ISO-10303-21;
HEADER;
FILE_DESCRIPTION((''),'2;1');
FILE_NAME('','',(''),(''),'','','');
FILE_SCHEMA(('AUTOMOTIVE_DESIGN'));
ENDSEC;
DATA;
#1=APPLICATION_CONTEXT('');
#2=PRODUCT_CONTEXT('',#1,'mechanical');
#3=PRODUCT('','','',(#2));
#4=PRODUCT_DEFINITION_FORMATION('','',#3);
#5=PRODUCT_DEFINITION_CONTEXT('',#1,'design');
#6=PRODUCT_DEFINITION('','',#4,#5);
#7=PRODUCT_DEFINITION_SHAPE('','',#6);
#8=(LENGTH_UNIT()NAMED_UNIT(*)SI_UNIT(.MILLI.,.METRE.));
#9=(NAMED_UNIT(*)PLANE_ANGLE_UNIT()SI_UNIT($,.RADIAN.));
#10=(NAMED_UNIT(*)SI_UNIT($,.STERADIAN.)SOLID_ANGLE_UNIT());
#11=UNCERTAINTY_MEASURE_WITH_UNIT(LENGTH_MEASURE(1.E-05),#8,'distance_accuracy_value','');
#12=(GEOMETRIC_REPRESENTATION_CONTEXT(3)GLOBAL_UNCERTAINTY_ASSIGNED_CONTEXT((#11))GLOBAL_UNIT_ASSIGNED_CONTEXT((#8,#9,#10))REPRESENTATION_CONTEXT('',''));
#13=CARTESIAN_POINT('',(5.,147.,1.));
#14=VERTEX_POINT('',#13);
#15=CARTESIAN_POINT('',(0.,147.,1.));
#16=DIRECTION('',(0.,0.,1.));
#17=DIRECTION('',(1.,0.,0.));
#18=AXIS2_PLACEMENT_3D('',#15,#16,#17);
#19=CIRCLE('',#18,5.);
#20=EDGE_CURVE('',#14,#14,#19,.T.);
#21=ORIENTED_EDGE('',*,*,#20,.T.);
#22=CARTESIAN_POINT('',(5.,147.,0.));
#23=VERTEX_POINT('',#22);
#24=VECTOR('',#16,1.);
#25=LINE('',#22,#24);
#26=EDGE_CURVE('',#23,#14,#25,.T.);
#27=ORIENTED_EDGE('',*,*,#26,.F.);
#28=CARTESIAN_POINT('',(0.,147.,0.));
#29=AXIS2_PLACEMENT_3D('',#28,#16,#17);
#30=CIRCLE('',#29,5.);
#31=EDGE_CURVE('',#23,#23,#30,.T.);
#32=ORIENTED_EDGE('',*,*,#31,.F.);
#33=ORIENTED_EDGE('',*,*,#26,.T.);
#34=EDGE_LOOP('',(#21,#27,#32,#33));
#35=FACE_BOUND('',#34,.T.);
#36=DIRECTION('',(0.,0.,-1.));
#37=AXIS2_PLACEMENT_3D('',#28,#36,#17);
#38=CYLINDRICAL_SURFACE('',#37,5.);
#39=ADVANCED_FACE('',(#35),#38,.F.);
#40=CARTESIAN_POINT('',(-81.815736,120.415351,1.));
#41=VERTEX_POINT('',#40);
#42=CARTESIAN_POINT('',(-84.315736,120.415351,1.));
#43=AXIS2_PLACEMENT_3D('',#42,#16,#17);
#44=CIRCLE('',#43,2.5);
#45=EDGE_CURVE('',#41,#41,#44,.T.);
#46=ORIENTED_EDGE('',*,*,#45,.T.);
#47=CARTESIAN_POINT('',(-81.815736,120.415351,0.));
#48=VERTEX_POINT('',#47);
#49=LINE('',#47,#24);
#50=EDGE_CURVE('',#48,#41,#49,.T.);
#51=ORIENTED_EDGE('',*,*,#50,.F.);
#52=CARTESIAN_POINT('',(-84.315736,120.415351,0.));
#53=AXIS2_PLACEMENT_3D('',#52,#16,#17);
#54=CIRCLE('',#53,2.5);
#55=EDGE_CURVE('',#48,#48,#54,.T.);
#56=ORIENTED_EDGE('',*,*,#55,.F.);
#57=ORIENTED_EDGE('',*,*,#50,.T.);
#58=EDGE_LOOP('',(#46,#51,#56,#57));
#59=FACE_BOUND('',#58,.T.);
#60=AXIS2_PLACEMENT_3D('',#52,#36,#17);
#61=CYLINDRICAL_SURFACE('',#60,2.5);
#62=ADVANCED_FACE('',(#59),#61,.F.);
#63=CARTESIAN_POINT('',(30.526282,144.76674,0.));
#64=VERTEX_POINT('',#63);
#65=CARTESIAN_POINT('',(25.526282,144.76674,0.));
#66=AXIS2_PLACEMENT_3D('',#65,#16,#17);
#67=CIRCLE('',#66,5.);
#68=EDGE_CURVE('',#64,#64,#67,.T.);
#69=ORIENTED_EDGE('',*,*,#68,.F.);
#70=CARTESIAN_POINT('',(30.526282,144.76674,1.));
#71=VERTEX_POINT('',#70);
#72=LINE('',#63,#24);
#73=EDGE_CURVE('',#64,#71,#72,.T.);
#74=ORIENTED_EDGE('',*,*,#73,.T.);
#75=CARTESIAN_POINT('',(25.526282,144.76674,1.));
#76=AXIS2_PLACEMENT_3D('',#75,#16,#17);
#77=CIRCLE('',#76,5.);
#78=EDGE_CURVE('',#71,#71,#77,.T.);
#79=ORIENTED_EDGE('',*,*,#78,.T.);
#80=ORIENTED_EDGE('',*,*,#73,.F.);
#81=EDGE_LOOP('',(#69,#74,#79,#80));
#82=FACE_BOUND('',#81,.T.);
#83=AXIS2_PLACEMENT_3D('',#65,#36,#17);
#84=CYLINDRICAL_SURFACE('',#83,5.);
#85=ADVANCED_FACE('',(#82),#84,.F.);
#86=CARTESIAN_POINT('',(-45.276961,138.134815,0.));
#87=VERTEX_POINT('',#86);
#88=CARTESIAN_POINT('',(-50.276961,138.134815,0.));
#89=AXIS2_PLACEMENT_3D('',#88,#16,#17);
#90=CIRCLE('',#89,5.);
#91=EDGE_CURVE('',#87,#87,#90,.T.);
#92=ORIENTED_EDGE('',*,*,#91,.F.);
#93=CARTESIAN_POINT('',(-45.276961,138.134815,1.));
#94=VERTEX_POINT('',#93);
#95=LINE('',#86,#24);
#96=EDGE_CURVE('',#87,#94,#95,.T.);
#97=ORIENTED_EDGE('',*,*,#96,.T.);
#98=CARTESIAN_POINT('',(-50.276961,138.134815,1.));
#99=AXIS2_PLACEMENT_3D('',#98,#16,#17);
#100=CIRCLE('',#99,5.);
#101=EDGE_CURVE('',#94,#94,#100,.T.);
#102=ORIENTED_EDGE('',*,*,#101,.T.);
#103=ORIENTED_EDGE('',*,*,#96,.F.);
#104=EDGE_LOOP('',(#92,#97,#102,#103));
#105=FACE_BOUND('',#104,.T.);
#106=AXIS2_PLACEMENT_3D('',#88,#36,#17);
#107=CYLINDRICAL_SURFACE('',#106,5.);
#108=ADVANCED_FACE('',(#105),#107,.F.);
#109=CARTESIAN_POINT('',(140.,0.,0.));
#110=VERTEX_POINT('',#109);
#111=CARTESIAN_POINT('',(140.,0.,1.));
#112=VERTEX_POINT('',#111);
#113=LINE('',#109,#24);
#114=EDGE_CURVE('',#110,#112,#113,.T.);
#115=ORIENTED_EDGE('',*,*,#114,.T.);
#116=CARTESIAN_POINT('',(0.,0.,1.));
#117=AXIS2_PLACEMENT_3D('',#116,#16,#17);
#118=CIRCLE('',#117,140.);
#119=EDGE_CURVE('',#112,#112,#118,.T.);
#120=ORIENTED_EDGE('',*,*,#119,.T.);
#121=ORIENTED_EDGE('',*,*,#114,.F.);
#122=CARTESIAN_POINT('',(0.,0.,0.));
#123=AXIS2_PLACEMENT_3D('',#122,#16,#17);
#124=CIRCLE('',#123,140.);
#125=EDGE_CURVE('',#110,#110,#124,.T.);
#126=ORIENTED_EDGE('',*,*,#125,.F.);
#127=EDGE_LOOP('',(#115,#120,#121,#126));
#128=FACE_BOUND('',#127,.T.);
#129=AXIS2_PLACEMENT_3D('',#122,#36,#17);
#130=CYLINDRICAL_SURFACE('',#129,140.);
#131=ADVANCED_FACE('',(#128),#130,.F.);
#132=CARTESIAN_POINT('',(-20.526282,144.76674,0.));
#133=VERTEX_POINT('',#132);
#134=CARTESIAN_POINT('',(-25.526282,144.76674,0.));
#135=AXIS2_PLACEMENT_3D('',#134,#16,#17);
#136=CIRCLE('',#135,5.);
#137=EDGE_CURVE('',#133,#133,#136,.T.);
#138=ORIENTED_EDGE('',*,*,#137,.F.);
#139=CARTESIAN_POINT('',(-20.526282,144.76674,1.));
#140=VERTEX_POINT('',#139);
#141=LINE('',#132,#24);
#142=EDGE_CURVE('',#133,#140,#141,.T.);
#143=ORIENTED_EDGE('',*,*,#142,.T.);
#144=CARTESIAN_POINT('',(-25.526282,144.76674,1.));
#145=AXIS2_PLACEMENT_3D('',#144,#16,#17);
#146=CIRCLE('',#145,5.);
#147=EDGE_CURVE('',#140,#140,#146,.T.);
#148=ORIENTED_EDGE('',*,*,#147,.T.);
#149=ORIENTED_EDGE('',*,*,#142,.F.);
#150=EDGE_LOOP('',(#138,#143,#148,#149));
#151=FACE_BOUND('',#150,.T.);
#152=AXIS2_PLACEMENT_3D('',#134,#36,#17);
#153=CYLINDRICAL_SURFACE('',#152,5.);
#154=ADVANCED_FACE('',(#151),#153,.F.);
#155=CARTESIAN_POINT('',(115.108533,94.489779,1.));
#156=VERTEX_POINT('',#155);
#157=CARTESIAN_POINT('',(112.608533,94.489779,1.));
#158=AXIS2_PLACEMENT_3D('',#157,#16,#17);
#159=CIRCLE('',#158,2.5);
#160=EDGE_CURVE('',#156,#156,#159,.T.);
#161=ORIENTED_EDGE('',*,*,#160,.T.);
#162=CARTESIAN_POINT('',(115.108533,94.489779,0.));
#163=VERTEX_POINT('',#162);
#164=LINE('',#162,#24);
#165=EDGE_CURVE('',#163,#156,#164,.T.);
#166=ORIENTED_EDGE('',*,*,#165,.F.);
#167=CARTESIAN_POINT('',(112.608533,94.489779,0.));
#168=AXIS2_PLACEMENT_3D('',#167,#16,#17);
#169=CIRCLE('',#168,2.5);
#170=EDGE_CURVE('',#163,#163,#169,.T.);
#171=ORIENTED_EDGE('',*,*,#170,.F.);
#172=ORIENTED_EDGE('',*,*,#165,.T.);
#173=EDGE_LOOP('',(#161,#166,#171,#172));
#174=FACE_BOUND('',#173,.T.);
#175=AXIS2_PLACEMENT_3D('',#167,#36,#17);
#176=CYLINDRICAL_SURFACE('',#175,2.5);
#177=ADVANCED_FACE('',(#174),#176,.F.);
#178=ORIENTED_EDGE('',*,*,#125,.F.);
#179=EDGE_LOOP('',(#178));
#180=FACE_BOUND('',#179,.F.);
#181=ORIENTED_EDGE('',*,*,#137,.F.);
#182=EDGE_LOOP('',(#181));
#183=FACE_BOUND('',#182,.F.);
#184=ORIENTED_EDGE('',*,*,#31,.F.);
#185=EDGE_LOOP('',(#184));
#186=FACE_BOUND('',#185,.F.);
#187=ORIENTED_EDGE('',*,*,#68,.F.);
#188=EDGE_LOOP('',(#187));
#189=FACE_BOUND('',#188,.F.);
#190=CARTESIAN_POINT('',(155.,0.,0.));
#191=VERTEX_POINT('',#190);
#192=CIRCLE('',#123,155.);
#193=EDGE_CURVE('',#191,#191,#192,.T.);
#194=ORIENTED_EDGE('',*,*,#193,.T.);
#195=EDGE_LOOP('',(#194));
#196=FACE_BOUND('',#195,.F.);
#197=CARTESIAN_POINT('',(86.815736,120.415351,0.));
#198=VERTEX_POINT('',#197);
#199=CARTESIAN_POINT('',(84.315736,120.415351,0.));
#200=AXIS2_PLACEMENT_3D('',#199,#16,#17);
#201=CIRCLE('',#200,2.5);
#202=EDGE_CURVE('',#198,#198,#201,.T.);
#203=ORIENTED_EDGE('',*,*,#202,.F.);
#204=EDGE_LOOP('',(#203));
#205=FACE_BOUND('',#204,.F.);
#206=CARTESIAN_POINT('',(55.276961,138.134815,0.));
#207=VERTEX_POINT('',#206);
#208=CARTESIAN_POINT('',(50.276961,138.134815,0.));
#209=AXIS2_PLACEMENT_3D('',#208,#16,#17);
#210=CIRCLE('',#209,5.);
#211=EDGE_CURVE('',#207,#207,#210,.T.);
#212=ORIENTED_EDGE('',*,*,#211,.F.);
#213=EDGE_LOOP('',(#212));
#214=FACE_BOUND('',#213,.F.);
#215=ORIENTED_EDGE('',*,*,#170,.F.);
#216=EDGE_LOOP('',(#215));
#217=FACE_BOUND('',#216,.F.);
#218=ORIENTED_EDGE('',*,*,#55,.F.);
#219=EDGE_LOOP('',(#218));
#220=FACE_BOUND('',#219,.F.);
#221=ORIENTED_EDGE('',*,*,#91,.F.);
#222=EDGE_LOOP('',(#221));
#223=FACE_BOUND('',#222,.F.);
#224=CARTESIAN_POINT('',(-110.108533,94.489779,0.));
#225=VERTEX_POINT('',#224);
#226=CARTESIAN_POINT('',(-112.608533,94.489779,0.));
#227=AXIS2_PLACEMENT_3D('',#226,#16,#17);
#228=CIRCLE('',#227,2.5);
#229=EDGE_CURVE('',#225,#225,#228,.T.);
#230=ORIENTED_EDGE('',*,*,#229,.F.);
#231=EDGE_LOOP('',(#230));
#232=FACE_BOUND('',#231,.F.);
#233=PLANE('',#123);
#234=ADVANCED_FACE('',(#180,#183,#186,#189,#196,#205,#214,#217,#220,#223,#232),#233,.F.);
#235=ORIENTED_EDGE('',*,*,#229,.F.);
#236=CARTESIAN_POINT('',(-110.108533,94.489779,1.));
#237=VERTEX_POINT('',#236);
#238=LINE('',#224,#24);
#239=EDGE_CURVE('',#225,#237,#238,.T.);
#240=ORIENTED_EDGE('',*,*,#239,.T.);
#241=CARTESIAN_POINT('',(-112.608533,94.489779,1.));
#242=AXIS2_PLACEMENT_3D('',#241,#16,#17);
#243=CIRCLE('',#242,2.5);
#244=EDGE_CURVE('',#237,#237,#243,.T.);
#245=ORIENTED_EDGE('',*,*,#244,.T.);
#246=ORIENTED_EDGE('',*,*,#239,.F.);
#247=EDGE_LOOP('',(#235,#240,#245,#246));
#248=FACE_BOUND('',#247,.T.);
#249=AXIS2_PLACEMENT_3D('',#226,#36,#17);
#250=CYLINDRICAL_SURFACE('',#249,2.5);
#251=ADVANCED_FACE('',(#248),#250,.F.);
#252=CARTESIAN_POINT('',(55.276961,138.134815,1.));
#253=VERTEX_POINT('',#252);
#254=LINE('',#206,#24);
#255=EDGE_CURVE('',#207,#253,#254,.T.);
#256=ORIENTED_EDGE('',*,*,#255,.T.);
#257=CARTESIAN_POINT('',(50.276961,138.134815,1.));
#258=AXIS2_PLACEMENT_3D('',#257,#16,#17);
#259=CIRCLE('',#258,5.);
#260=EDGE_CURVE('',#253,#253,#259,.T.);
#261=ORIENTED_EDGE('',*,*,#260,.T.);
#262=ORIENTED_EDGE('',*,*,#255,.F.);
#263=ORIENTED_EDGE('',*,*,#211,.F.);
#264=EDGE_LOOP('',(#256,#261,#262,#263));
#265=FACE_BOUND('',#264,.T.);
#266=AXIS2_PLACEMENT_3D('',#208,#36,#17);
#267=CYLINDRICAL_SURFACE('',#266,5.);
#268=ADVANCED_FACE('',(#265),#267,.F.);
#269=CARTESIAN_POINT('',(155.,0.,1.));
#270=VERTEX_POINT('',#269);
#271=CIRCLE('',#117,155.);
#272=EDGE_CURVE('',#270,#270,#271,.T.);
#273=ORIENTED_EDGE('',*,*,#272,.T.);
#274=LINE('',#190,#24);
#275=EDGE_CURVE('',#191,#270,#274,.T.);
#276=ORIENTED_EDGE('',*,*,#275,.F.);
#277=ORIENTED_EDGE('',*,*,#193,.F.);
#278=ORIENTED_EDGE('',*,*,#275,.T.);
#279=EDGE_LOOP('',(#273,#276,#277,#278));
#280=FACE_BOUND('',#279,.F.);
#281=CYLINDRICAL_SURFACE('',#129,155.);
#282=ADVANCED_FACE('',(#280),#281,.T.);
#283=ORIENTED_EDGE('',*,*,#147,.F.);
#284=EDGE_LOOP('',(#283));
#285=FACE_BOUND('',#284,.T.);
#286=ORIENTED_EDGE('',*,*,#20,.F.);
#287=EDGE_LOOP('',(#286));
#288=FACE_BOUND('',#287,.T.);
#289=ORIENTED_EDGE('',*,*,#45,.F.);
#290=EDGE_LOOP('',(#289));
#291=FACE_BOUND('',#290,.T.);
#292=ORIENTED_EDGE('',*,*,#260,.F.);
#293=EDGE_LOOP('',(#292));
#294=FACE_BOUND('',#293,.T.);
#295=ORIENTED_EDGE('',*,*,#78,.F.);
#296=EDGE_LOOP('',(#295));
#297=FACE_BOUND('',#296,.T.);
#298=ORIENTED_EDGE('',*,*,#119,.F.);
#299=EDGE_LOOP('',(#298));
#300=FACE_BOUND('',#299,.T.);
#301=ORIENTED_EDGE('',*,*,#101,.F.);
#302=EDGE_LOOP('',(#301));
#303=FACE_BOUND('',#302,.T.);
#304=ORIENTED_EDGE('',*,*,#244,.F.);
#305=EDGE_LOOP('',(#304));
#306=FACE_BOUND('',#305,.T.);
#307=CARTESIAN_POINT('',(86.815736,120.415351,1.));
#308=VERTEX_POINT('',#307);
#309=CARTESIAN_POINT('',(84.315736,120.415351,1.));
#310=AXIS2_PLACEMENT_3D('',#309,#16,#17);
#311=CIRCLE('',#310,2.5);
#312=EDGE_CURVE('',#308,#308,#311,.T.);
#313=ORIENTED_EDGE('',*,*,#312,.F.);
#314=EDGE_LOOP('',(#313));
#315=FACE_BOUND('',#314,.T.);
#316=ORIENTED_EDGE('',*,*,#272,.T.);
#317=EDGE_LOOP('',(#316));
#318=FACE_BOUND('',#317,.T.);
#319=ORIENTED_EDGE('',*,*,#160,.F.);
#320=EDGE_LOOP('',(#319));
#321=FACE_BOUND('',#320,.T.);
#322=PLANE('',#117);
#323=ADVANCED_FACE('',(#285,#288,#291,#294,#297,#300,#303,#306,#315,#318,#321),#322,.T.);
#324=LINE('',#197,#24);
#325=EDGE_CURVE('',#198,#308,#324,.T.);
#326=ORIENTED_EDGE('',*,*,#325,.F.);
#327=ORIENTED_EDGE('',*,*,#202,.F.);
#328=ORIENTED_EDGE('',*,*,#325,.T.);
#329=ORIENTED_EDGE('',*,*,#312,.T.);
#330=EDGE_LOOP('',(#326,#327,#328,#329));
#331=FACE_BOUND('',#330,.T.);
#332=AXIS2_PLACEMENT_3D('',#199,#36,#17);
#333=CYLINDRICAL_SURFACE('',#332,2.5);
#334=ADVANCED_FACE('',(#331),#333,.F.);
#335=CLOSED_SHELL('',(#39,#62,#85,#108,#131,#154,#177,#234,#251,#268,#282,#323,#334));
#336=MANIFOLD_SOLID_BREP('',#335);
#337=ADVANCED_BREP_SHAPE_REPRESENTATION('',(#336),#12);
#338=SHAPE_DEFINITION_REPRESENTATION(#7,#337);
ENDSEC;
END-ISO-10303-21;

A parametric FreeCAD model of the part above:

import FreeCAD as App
import Part
import Sketcher

V = App.Vector
Q = App.Units.Quantity

doc = App.newDocument("Part")
params = doc.addObject("Spreadsheet::Sheet", "Params")
for row, (alias, value) in enumerate([
    ("sketch1_diameter", "310 mm"),
    ("sketch1_diameter2", "280 mm"),
    ("sketch1_diameter3", "5 mm"),
    ("sketch1_diameter4", "10 mm"),
    ("pad1_length", "1 mm"),
], start=1):
    params.set(f"A{row}", alias)
    params.set(f"B{row}", "=" + value)
    params.setAlias(f"B{row}", alias)

body = doc.addObject("PartDesign::Body", "Body")

# Sketch on XY plane
sketch1 = body.newObject("Sketcher::SketchObject", "Sketch")
sketch1.AttachmentSupport = (doc.getObject("XY_Plane"), [""])
sketch1.MapMode = "FlatFace"
sketch1.addGeometry([
    Part.Circle(V(0, 0, 0), V(0, 0, 1), 155),  # 0
    Part.Circle(V(0, 0, 0), V(0, 0, 1), 140),  # 1
    Part.Circle(V(-112.6, 94.5, 0), V(0, 0, 1), 2.5),  # 2
    Part.Circle(V(-84.3, 120.4, 0), V(0, 0, 1), 2.5),  # 3
    Part.Circle(V(-50.3, 138.1, 0), V(0, 0, 1), 5),  # 4
    Part.Circle(V(-25.5, 144.8, 0), V(0, 0, 1), 5),  # 5
    Part.Circle(V(0, 147, 0), V(0, 0, 1), 5),  # 6
    Part.Circle(V(25.5, 144.8, 0), V(0, 0, 1), 5),  # 7
    Part.Circle(V(50.3, 138.1, 0), V(0, 0, 1), 5),  # 8
    Part.Circle(V(112.6, 94.5, 0), V(0, 0, 1), 2.5),  # 9
    Part.Circle(V(84.3, 120.4, 0), V(0, 0, 1), 2.5),  # 10
], False)
sketch1.addConstraint([
    Sketcher.Constraint("Coincident", 0, 3, -1, 1),
    Sketcher.Constraint("Coincident", 1, 3, -1, 1),
    Sketcher.Constraint("Equal", 2, 3),
    Sketcher.Constraint("Equal", 4, 5),
    Sketcher.Constraint("Equal", 5, 6),
    Sketcher.Constraint("Equal", 6, 7),
    Sketcher.Constraint("Equal", 7, 8),
    Sketcher.Constraint("Equal", 3, 9),
    Sketcher.Constraint("Equal", 9, 10),
    Sketcher.Constraint("Symmetric", 5, 3, 7, 3, -2),
    Sketcher.Constraint("Symmetric", 4, 3, 8, 3, -2),
    Sketcher.Constraint("Symmetric", 2, 3, 9, 3, -2),
    Sketcher.Constraint("Symmetric", 3, 3, 10, 3, -2),
    Sketcher.Constraint("PointOnObject", 6, 3, -2),
    Sketcher.Constraint("Diameter", 0, Q("310 mm")),
    Sketcher.Constraint("Diameter", 1, Q("280 mm")),
    Sketcher.Constraint("Diameter", 2, Q("5 mm")),
    Sketcher.Constraint("Diameter", 4, Q("10 mm")),
    Sketcher.Constraint("DistanceY", -1, 1, 6, 3, Q("147 mm")),
    Sketcher.Constraint("DistanceY", -1, 1, 2, 3, Q("94.489779 mm")),
    Sketcher.Constraint("DistanceY", -1, 1, 3, 3, Q("120.415351 mm")),
    Sketcher.Constraint("DistanceX", 4, 3, -1, 1, Q("50.276961 mm")),
    Sketcher.Constraint("DistanceX", 5, 3, -1, 1, Q("25.526282 mm")),
    Sketcher.Constraint("DistanceY", -1, 1, 5, 3, Q("144.76674 mm")),
    Sketcher.Constraint("DistanceX", 2, 3, 4, 3, Q("62.331572 mm")),
    Sketcher.Constraint("DistanceX", 3, 3, -1, 1, Q("84.315736 mm")),
    Sketcher.Constraint("DistanceY", -1, 1, 4, 3, Q("138.134815 mm")),
])
sketch1.setExpression("Constraints[14]", "Params.sketch1_diameter")
sketch1.setExpression("Constraints[15]", "Params.sketch1_diameter2")
sketch1.setExpression("Constraints[16]", "Params.sketch1_diameter3")
sketch1.setExpression("Constraints[17]", "Params.sketch1_diameter4")
pad1 = body.newObject("PartDesign::Pad", "Pad")
pad1.Profile = sketch1
pad1.setExpression("Length", "Params.pad1_length")

doc.recompute()
